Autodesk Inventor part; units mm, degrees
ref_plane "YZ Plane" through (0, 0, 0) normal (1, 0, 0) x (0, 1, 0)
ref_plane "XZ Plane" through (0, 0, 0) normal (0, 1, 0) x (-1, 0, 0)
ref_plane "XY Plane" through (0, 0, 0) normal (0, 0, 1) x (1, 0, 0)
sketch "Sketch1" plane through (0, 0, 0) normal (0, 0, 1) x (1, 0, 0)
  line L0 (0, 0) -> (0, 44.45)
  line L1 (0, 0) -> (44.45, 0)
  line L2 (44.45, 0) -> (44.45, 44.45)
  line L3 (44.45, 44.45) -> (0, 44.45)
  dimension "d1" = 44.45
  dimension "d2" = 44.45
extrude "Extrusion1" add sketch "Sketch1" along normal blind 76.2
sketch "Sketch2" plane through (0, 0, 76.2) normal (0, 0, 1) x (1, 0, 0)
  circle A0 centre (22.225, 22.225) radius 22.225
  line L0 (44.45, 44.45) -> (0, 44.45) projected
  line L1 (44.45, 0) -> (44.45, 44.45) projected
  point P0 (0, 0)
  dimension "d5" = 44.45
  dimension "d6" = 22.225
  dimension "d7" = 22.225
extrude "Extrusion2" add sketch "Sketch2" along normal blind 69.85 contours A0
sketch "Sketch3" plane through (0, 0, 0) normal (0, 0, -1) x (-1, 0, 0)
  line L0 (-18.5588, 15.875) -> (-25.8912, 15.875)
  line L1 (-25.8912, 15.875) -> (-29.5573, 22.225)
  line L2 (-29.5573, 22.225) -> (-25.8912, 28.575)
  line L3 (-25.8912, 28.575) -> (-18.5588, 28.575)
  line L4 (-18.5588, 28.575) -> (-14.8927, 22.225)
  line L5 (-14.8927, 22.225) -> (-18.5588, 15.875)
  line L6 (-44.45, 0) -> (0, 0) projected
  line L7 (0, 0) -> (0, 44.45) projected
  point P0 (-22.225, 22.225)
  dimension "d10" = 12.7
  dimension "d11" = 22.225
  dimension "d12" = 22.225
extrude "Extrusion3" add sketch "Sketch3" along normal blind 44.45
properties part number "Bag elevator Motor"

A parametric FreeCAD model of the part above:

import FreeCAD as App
import Part
import Sketcher
Q = App.Units.Quantity

doc = App.newDocument("Part")
params = doc.addObject("Spreadsheet::Sheet", "Params")
for row, (alias, value) in enumerate([
    ("sketch1_width", "1.75 in"),
    ("pad1_length", "3 in"),
    ("sketch2_diameter", "1.75 in"),
    ("pad2_length", "2.75 in"),
    ("pad3_length", "1.75 in"),
], start=1):
    params.set(f"A{row}", alias)
    params.set(f"B{row}", "=" + value)
    params.setAlias(f"B{row}", alias)

body = doc.addObject("PartDesign::Body", "Body")

sketch1 = body.newObject("Sketcher::SketchObject", "Sketch")
sketch1.AttachmentSupport = (doc.getObject("XY_Plane"), [""])
sketch1.MapMode = "FlatFace"
sketch1.addGeometry([
    Part.LineSegment(App.Vector(0, 44.45, 0), App.Vector(0, 0, 0)),
    Part.LineSegment(App.Vector(0, 0, 0), App.Vector(44.45, 0, 0)),
    Part.LineSegment(App.Vector(44.45, 0, 0), App.Vector(44.45, 44.45, 0)),
    Part.LineSegment(App.Vector(44.45, 44.45, 0), App.Vector(0, 44.45, 0)),
], False)
sketch1.addConstraint([
    Sketcher.Constraint("Coincident", 0, 2, 1, 1),
    Sketcher.Constraint("Coincident", 1, 2, 2, 1),
    Sketcher.Constraint("Coincident", 2, 2, 3, 1),
    Sketcher.Constraint("Coincident", 3, 2, 0, 1),
    Sketcher.Constraint("Vertical", 0),
    Sketcher.Constraint("Horizontal", 1),
    Sketcher.Constraint("Vertical", 2),
    Sketcher.Constraint("Horizontal", 3),
    Sketcher.Constraint("Coincident", 0, 2, -1, 1),
    Sketcher.Constraint("Equal", 3, 0),
    Sketcher.Constraint("DistanceX", 1, 1, 1, 2, Q("1.75 in")),
])
sketch1.setExpression("Constraints[10]", "Params.sketch1_width")
pad1 = body.newObject("PartDesign::Pad", "Pad")
pad1.Profile = sketch1
pad1.setExpression("Length", "Params.pad1_length")

sketch2 = body.newObject("Sketcher::SketchObject", "Sketch001")
sketch2.AttachmentSupport = (doc.getObject("XY_Plane"), [""])
sketch2.MapMode = "FlatFace"
sketch2.AttachmentOffset = App.Placement(App.Vector(0, 0, 3 * 25.4), App.Rotation())
sketch2.addGeometry(Part.Circle(App.Vector(22.225, 22.225, 0), App.Vector(0, 0, 1), 22.225), False)
sketch2.addConstraint([
    Sketcher.Constraint("Diameter", 0, Q("1.75 in")),
    Sketcher.Constraint("DistanceX", -1, 1, 0, 3, Q("0.875 in")),
    Sketcher.Constraint("DistanceY", -1, 1, 0, 3, Q("0.875 in")),
])
sketch2.setExpression("Constraints[0]", "Params.sketch2_diameter")
pad2 = body.newObject("PartDesign::Pad", "Pad001")
pad2.Profile = sketch2
pad2.setExpression("Length", "Params.pad2_length")

sketch3 = body.newObject("Sketcher::SketchObject", "Sketch002")
sketch3.AttachmentSupport = (doc.getObject("XY_Plane"), [""])
sketch3.MapMode = "FlatFace"
sketch3.addGeometry([
    Part.LineSegment(App.Vector(25.8912, 15.875, 0), App.Vector(18.5588, 15.875, 0)),
    Part.LineSegment(App.Vector(18.5588, 15.875, 0), App.Vector(14.8927, 22.225, 0)),
    Part.LineSegment(App.Vector(14.8927, 22.225, 0), App.Vector(18.5588, 28.575, 0)),
    Part.LineSegment(App.Vector(18.5588, 28.575, 0), App.Vector(25.8912, 28.575, 0)),
    Part.LineSegment(App.Vector(25.8912, 28.575, 0), App.Vector(29.5573, 22.225, 0)),
    Part.LineSegment(App.Vector(29.5573, 22.225, 0), App.Vector(25.8912, 15.875, 0)),
], False)
sketch3.addConstraint([
    Sketcher.Constraint("Coincident", 0, 2, 1, 1),
    Sketcher.Constraint("Coincident", 1, 2, 2, 1),
    Sketcher.Constraint("Coincident", 2, 2, 3, 1),
    Sketcher.Constraint("Coincident", 3, 2, 4, 1),
    Sketcher.Constraint("Coincident", 4, 2, 5, 1),
    Sketcher.Constraint("Coincident", 5, 2, 0, 1),
    Sketcher.Constraint("Horizontal", 0),
    Sketcher.Constraint("Horizontal", 3),
    Sketcher.Constraint("Parallel", 1, 4),
    Sketcher.Constraint("Parallel", 2, 5),
    Sketcher.Constraint("Horizontal", 1, 2, 4, 2),
    Sketcher.Constraint("Vertical", 0, 2, 2, 2),
    Sketcher.Constraint("Vertical", 3, 2, 5, 2),
    Sketcher.Constraint("DistanceY", 0, 2, 2, 2, Q("0.5 in")),
    Sketcher.Constraint("DistanceY", -1, 1, 1, 2, Q("0.875 in")),
    Sketcher.Constraint("Angle", 1, Q("119.9995 deg")),
    Sketcher.Constraint("DistanceX", 1, 2, 3, 2, Q("0.433 in")),
    Sketcher.Constraint("DistanceX", -1, 1, 0, 2, Q("18.5588 mm")),
])
pad3 = body.newObject("PartDesign::Pad", "Pad002")
pad3.Profile = sketch3
pad3.setExpression("Length", "Params.pad3_length")
pad3.Reversed = True

doc.recompute()
